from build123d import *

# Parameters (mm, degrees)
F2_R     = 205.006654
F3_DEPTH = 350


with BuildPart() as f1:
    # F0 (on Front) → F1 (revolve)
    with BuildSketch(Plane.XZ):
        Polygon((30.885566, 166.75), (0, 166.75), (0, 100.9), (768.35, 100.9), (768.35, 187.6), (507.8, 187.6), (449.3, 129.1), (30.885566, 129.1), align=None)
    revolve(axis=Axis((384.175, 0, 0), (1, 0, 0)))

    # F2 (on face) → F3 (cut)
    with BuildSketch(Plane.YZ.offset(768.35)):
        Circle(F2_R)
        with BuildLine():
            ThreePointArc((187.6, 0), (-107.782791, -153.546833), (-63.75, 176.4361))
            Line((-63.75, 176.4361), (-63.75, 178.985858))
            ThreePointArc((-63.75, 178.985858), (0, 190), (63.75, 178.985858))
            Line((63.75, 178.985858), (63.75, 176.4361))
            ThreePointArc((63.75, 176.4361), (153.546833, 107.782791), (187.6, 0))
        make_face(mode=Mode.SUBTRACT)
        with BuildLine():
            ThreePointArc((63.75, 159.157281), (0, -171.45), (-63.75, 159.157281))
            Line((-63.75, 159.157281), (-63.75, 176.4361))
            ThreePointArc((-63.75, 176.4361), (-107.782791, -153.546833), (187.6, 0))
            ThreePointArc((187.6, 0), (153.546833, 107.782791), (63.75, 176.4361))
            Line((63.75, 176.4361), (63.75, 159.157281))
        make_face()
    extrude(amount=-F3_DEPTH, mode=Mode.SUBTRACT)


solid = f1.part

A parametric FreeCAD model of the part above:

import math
import FreeCAD as App
import Part
import Sketcher
from FreeCAD import Vector
Q = App.Units.Quantity

doc = App.newDocument("Part")
body = doc.addObject("PartDesign::Body", "Body")

# Sketch on XZ plane
sketch1 = body.newObject("Sketcher::SketchObject", "Sketch")
sketch1.AttachmentSupport = (doc.getObject("XZ_Plane"), [""])
sketch1.MapMode = "FlatFace"
sketch1.addGeometry([
    Part.LineSegment(Vector(30.885566, 166.75, 0), Vector(0, 166.75, 0)),  # 0
    Part.LineSegment(Vector(0, 166.75, 0), Vector(0, 100.9, 0)),  # 1
    Part.LineSegment(Vector(0, 100.9, 0), Vector(768.35, 100.9, 0)),  # 2
    Part.LineSegment(Vector(768.35, 100.9, 0), Vector(768.35, 187.6, 0)),  # 3
    Part.LineSegment(Vector(768.35, 187.6, 0), Vector(507.8, 187.6, 0)),  # 4
    Part.LineSegment(Vector(507.8, 187.6, 0), Vector(449.3, 129.1, 0)),  # 5
    Part.LineSegment(Vector(449.3, 129.1, 0), Vector(30.885566, 129.1, 0)),  # 6
    Part.LineSegment(Vector(30.885566, 129.1, 0), Vector(30.885566, 166.75, 0)),  # 7
], False)
sketch1.addConstraint([
    Sketcher.Constraint("Coincident", 0, 2, 1, 1),
    Sketcher.Constraint("Coincident", 1, 2, 2, 1),
    Sketcher.Constraint("Coincident", 2, 2, 3, 1),
    Sketcher.Constraint("Coincident", 3, 2, 4, 1),
    Sketcher.Constraint("Coincident", 4, 2, 5, 1),
    Sketcher.Constraint("Coincident", 5, 2, 6, 1),
    Sketcher.Constraint("Coincident", 6, 2, 7, 1),
    Sketcher.Constraint("Coincident", 7, 2, 0, 1),
    Sketcher.Constraint("Horizontal", 0),
    Sketcher.Constraint("Vertical", 1),
    Sketcher.Constraint("Horizontal", 2),
    Sketcher.Constraint("Vertical", 3),
    Sketcher.Constraint("Horizontal", 4),
    Sketcher.Constraint("Horizontal", 6),
    Sketcher.Constraint("Vertical", 7),
    Sketcher.Constraint("PointOnObject", 0, 2, -2),
    Sketcher.Constraint("Angle", 5, Q("-135 deg")),
    Sketcher.Constraint("DistanceY", 3, 1, 3, 2, Q("86.7 mm")),
    Sketcher.Constraint("DistanceX", 2, 1, 2, 2, Q("768.35 mm")),
    Sketcher.Constraint("DistanceX", 4, 2, 4, 1, Q("260.55 mm")),
    Sketcher.Constraint("DistanceY", 1, 2, 1, 1, Q("65.85 mm")),
    Sketcher.Constraint("DistanceY", 7, 1, 7, 2, Q("37.65 mm")),
    Sketcher.Constraint("DistanceY", -1, 1, 1, 2, Q("100.9 mm")),
    Sketcher.Constraint("DistanceX", 0, 2, 0, 1, Q("30.885566 mm")),
])
revolution = body.newObject("PartDesign::Revolution", "Revolution")
revolution.Profile = sketch1
revolution.ReferenceAxis = (sketch1, ["H_Axis"])
revolution.Angle = 360

# Sketch on YZ plane
sketch2 = body.newObject("Sketcher::SketchObject", "Sketch001")
sketch2.AttachmentSupport = (doc.getObject("YZ_Plane"), [""])
sketch2.MapMode = "FlatFace"
sketch2.AttachmentOffset = App.Placement(Vector(0, 0, 768.35), App.Rotation())
sketch2.addGeometry([
    Part.Circle(Vector(0, 0, 0), Vector(0, 0, 1), 205.006654),  # 0
    Part.LineSegment(Vector(63.75, 178.985858, 0), Vector(63.75, 159.157281, 0)),  # 1
    Part.ArcOfCircle(Part.Circle(Vector(0, 0, 0), Vector(0, 0, 1), 171.45), math.radians(111.828431), math.radians(428.171569)),  # 2
    Part.LineSegment(Vector(-63.75, 159.157281, 0), Vector(-63.75, 178.985858, 0)),  # 3
    Part.ArcOfCircle(Part.Circle(Vector(0, 0.000006, 0), Vector(0, 0, 1), 189.999994), math.radians(70.395453), math.radians(109.604547)),  # 4
], False)
sketch2.addConstraint([
    Sketcher.Constraint("Coincident", 1, 2, 2, 2),
    Sketcher.Constraint("Coincident", 2, 1, 3, 1),
    Sketcher.Constraint("Coincident", 3, 2, 4, 2),
    Sketcher.Constraint("Coincident", 4, 1, 1, 1),
    Sketcher.Constraint("Vertical", 1),
    Sketcher.Constraint("Vertical", 3),
    Sketcher.Constraint("Coincident", 0, 3, -1, 1),
    Sketcher.Constraint("Coincident", 2, 3, -1, 1),
    Sketcher.Constraint("Coincident", 4, 3, -1, 1),
    Sketcher.Constraint("Horizontal", 1, 2, 2, 1),
    Sketcher.Constraint("Radius", 2, Q("171.45 mm")),
    Sketcher.Constraint("DistanceX", 2, 1, 1, 2, Q("127.5 mm")),
    Sketcher.Constraint("Diameter", 0, Q("410.013308 mm")),
    Sketcher.Constraint("Radius", 4, Q("189.999994 mm")),
])
pocket1 = body.newObject("PartDesign::Pocket", "Pocket")
pocket1.Profile = sketch2
pocket1.Length = 350

doc.recompute()
